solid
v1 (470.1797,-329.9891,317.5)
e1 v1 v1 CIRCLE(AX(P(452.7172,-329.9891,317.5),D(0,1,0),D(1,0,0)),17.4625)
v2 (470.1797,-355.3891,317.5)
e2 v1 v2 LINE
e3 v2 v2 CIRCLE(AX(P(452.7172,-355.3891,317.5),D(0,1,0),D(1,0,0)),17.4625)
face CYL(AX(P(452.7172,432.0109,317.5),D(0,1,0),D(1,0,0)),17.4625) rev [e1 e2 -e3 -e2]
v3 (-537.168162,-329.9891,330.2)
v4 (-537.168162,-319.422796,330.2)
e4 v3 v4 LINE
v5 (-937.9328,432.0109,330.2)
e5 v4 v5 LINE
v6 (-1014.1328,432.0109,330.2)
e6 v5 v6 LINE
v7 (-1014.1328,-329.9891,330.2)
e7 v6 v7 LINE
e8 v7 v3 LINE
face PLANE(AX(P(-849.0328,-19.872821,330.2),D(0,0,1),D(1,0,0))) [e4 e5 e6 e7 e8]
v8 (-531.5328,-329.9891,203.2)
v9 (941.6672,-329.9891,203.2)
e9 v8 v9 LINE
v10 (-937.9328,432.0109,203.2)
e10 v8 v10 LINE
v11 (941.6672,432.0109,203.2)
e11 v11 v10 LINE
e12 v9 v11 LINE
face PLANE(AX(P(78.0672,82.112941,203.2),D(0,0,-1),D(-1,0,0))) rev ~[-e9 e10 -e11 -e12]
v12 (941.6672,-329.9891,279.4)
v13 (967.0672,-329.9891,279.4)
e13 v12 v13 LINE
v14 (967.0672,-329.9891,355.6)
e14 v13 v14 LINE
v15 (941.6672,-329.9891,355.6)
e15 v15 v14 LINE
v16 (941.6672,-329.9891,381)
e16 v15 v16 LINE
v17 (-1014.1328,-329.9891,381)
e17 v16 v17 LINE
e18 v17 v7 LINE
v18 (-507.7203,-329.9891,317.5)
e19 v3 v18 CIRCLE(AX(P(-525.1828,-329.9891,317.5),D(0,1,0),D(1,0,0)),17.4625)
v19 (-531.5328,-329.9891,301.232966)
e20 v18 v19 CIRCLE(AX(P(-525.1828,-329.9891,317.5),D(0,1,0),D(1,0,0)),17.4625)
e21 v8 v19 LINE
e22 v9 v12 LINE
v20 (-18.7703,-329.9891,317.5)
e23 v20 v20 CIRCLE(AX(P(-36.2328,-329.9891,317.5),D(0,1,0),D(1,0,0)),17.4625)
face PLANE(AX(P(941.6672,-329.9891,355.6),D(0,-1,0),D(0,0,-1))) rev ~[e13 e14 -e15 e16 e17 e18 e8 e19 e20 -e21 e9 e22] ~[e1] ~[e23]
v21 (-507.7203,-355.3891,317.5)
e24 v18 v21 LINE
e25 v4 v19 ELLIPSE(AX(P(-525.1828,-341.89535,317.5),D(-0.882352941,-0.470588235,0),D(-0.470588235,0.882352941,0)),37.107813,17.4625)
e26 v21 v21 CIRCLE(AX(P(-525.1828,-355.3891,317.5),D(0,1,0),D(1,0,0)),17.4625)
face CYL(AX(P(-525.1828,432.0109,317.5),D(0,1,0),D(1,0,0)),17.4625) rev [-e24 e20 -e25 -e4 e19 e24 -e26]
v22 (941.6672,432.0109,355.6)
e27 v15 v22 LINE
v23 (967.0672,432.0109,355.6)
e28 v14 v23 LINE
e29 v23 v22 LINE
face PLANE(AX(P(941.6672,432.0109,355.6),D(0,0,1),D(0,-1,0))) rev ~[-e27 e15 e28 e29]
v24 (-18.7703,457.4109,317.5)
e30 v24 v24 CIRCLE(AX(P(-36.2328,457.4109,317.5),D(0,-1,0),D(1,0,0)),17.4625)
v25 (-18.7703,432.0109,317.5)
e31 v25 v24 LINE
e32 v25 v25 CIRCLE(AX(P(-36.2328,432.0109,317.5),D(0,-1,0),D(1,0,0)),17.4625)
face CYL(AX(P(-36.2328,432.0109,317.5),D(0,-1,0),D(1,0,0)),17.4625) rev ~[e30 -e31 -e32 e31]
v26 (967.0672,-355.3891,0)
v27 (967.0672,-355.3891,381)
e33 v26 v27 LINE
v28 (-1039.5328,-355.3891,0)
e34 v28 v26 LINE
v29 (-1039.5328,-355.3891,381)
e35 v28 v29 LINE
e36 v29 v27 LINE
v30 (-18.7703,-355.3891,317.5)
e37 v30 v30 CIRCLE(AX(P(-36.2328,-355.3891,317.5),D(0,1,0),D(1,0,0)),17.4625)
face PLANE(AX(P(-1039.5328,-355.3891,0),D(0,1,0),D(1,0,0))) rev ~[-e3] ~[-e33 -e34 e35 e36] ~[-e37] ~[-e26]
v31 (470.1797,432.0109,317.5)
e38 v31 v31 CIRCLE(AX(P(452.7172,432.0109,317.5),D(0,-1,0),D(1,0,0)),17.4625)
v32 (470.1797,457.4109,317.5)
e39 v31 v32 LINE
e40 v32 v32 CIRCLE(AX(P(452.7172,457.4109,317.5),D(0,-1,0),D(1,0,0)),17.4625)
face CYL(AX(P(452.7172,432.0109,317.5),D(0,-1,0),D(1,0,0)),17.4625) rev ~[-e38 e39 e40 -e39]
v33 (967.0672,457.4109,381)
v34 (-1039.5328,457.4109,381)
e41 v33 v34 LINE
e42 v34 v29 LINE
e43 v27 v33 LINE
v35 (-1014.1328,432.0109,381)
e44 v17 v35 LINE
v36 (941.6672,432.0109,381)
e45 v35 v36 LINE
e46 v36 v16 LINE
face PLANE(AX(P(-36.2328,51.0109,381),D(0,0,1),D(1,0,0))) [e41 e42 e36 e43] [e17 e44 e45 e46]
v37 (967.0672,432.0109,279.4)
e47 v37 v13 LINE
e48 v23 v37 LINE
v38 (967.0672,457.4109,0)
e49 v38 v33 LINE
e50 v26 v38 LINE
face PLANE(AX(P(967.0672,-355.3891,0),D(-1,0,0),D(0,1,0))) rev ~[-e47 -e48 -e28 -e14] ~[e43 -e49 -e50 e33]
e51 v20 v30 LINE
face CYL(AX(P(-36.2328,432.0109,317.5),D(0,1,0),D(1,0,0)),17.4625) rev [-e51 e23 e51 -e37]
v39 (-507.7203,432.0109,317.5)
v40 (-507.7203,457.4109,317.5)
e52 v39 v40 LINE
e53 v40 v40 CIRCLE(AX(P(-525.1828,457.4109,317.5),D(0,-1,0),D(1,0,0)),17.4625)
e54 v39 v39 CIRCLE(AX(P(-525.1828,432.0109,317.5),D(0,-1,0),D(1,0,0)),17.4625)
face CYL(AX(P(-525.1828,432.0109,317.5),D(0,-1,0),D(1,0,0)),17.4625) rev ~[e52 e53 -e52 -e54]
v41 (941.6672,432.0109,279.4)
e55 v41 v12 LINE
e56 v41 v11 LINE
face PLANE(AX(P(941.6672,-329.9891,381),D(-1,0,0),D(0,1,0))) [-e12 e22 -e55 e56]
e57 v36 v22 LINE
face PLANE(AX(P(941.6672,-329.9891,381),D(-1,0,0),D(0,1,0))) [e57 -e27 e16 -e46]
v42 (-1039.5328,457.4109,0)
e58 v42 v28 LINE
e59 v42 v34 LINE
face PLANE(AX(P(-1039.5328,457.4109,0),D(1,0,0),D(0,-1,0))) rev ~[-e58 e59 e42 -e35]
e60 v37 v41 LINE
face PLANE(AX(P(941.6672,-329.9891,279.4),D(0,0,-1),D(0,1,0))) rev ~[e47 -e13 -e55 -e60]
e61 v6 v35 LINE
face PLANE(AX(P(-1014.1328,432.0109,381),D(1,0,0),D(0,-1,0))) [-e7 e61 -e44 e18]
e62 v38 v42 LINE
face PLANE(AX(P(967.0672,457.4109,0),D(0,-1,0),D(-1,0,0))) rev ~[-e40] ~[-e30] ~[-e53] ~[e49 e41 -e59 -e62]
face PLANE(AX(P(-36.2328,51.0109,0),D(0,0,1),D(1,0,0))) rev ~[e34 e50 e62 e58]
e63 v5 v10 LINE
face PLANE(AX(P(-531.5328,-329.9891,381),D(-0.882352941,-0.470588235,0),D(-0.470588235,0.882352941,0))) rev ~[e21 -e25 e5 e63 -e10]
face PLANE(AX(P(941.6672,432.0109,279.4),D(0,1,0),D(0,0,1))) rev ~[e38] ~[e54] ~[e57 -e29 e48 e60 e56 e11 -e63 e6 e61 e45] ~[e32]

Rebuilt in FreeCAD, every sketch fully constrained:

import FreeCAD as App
import Part
import Sketcher
from FreeCAD import Vector
Q = App.Units.Quantity


def add_polygon(sketch, points):
    """Adds a closed chain of lines whose ends are joined by coincident constraints."""
    first, n = sketch.GeometryCount, len(points)
    for a, b in zip(points, points[1:] + points[:1]):
        sketch.addGeometry(Part.LineSegment(App.Vector(*a, 0), App.Vector(*b, 0)), False)
    for i in range(n):
        sketch.addConstraint(Sketcher.Constraint("Coincident", first + i, 2, first + (i + 1) % n, 1))

doc = App.newDocument("Part")
body = doc.addObject("PartDesign::Body", "Body")

# Sketch on XY plane
sketch1 = body.newObject("Sketcher::SketchObject", "Sketch")
sketch1.AttachmentSupport = (doc.getObject("XY_Plane"), [""])
sketch1.MapMode = "FlatFace"
add_polygon(sketch1, [(-1039.5328, 457.4109), (-1039.5328, -355.3891), (967.0672, -355.3891), (967.0672, 457.4109)])  # lines 0-3
sketch1.addConstraint(Sketcher.Constraint("Vertical", 0))
sketch1.addConstraint(Sketcher.Constraint("Horizontal", 1))
sketch1.addConstraint(Sketcher.Constraint("Vertical", 2))
sketch1.addConstraint(Sketcher.Constraint("Horizontal", 3))
sketch1.addConstraint(Sketcher.Constraint("DistanceX", 1, 1, 1, 2, Q("79 in")))
sketch1.addConstraint(Sketcher.Constraint("DistanceY", 0, 2, 0, 1, Q("32 in")))
sketch1.addConstraint(Sketcher.Constraint("DistanceX", 0, 2, -1, 1, Q("40.9265 in")))
sketch1.addConstraint(Sketcher.Constraint("DistanceY", 0, 2, -1, 1, Q("13.9917 in")))
pad1 = body.newObject("PartDesign::Pad", "Pad")
pad1.Profile = sketch1
pad1.Length = Q("15 in")

# Sketch on XY plane
sketch2 = body.newObject("Sketcher::SketchObject", "Sketch001")
sketch2.AttachmentSupport = (doc.getObject("XY_Plane"), [""])
sketch2.MapMode = "FlatFace"
sketch2.AttachmentOffset = App.Placement(Vector(0, 0, 15 * 25.4), App.Rotation())
add_polygon(sketch2, [(-937.9328, 432.0109), (-531.5328, -329.9891), (941.6672, -329.9891), (941.6672, 432.0109)])  # lines 0-3
sketch2.addConstraint(Sketcher.Constraint("Horizontal", 1))
sketch2.addConstraint(Sketcher.Constraint("Vertical", 2))
sketch2.addConstraint(Sketcher.Constraint("Horizontal", 3))
sketch2.addConstraint(Sketcher.Constraint("DistanceX", 1, 1, 1, 2, Q("58 in")))
sketch2.addConstraint(Sketcher.Constraint("DistanceX", 3, 2, 3, 1, Q("74 in")))
sketch2.addConstraint(Sketcher.Constraint("DistanceY", 2, 1, 2, 2, Q("30 in")))
sketch2.addConstraint(Sketcher.Constraint("DistanceX", 0, 2, -1, 1, Q("20.9265 in")))
sketch2.addConstraint(Sketcher.Constraint("DistanceY", 0, 2, -1, 1, Q("12.9917 in")))
pocket1 = body.newObject("PartDesign::Pocket", "Pocket")
pocket1.Profile = sketch2
pocket1.Length = Q("14 in")
pocket1.Midplane = True

# Sketch on XY plane
sketch3 = body.newObject("Sketcher::SketchObject", "Sketch002")
sketch3.AttachmentSupport = (doc.getObject("XY_Plane"), [""])
sketch3.MapMode = "FlatFace"
sketch3.AttachmentOffset = App.Placement(Vector(0, 0, 15 * 25.4), App.Rotation())
add_polygon(sketch3, [(-1014.1328, -329.9891), (-531.5328, -329.9891), (-937.9328, 432.0109), (-1014.1328, 432.0109)])  # lines 0-3
sketch3.addConstraint(Sketcher.Constraint("Horizontal", 0))
sketch3.addConstraint(Sketcher.Constraint("Horizontal", 2))
sketch3.addConstraint(Sketcher.Constraint("Vertical", 3))
sketch3.addConstraint(Sketcher.Constraint("DistanceX", 0, 1, 0, 2, Q("19 in")))
sketch3.addConstraint(Sketcher.Constraint("DistanceX", 2, 2, 2, 1, Q("3 in")))
sketch3.addConstraint(Sketcher.Constraint("DistanceY", 3, 2, 3, 1, Q("30 in")))
sketch3.addConstraint(Sketcher.Constraint("DistanceX", 0, 2, -1, 1, Q("20.9265 in")))
sketch3.addConstraint(Sketcher.Constraint("DistanceY", 0, 2, -1, 1, Q("12.9917 in")))
pocket2 = body.newObject("PartDesign::Pocket", "Pocket001")
pocket2.Profile = sketch3
pocket2.Length = Q("4 in")
pocket2.Midplane = True

# Sketch on YZ plane
sketch4 = body.newObject("Sketcher::SketchObject", "Sketch003")
sketch4.AttachmentSupport = (doc.getObject("YZ_Plane"), [""])
sketch4.MapMode = "FlatFace"
sketch4.AttachmentOffset = App.Placement(Vector(0, 0, 37.0735118 * 25.4), App.Rotation())
add_polygon(sketch4, [(-329.9891, 355.6), (432.0109, 355.6), (432.0109, 279.4), (-329.9891, 279.4)])  # lines 0-3
sketch4.addConstraint(Sketcher.Constraint("Horizontal", 0))
sketch4.addConstraint(Sketcher.Constraint("Vertical", 1))
sketch4.addConstraint(Sketcher.Constraint("Horizontal", 2))
sketch4.addConstraint(Sketcher.Constraint("Vertical", 3))
sketch4.addConstraint(Sketcher.Constraint("DistanceX", 0, 1, 0, 2, Q("30 in")))
sketch4.addConstraint(Sketcher.Constraint("DistanceY", 1, 2, 1, 1, Q("3 in")))
sketch4.addConstraint(Sketcher.Constraint("DistanceY", -1, 1, 0, 2, Q("14 in")))
sketch4.addConstraint(Sketcher.Constraint("DistanceX", -1, 1, 0, 2, Q("17.0083 in")))
pocket3 = body.newObject("PartDesign::Pocket", "Pocket002")
pocket3.Profile = sketch4
pocket3.Length = 909.4412
pocket3.Midplane = True

# Sketch on XZ plane
sketch5 = body.newObject("Sketcher::SketchObject", "Sketch004")
sketch5.AttachmentSupport = (doc.getObject("XZ_Plane"), [""])
sketch5.MapMode = "FlatFace"
sketch5.AttachmentOffset = App.Placement(Vector(0, 0, -17.0083031 * 25.4), App.Rotation())
sketch5.addGeometry(Part.Circle(Vector(-525.1828, 317.5, 0), Vector(0, 0, 1), 17.4625), False)
sketch5.addGeometry(Part.Circle(Vector(-36.2328, 317.5, 0), Vector(0, 0, 1), 17.4625), False)
sketch5.addGeometry(Part.Circle(Vector(452.7172, 317.5, 0), Vector(0, 0, 1), 17.4625), False)
sketch5.addConstraint(Sketcher.Constraint("Equal", 0, 1))
sketch5.addConstraint(Sketcher.Constraint("Equal", 1, 2))
sketch5.addConstraint(Sketcher.Constraint("Horizontal", 0, 3, 1, 3))
sketch5.addConstraint(Sketcher.Constraint("Horizontal", 1, 3, 2, 3))
sketch5.addConstraint(Sketcher.Constraint("Diameter", 0, Q("1.375 in")))
sketch5.addConstraint(Sketcher.Constraint("DistanceY", -1, 1, 0, 3, Q("12.5 in")))
sketch5.addConstraint(Sketcher.Constraint("DistanceX", 0, 3, 2, 3, Q("38.5 in")))
sketch5.addConstraint(Sketcher.Constraint("DistanceX", 0, 3, 1, 3, Q("19.25 in")))
sketch5.addConstraint(Sketcher.Constraint("DistanceX", 0, 3, -1, 1, Q("20.6765 in")))
pocket4 = body.newObject("PartDesign::Pocket", "Pocket003")
pocket4.Profile = sketch5
pocket4.Type = "ThroughAll"
pocket4.Midplane = True

doc.recompute()
